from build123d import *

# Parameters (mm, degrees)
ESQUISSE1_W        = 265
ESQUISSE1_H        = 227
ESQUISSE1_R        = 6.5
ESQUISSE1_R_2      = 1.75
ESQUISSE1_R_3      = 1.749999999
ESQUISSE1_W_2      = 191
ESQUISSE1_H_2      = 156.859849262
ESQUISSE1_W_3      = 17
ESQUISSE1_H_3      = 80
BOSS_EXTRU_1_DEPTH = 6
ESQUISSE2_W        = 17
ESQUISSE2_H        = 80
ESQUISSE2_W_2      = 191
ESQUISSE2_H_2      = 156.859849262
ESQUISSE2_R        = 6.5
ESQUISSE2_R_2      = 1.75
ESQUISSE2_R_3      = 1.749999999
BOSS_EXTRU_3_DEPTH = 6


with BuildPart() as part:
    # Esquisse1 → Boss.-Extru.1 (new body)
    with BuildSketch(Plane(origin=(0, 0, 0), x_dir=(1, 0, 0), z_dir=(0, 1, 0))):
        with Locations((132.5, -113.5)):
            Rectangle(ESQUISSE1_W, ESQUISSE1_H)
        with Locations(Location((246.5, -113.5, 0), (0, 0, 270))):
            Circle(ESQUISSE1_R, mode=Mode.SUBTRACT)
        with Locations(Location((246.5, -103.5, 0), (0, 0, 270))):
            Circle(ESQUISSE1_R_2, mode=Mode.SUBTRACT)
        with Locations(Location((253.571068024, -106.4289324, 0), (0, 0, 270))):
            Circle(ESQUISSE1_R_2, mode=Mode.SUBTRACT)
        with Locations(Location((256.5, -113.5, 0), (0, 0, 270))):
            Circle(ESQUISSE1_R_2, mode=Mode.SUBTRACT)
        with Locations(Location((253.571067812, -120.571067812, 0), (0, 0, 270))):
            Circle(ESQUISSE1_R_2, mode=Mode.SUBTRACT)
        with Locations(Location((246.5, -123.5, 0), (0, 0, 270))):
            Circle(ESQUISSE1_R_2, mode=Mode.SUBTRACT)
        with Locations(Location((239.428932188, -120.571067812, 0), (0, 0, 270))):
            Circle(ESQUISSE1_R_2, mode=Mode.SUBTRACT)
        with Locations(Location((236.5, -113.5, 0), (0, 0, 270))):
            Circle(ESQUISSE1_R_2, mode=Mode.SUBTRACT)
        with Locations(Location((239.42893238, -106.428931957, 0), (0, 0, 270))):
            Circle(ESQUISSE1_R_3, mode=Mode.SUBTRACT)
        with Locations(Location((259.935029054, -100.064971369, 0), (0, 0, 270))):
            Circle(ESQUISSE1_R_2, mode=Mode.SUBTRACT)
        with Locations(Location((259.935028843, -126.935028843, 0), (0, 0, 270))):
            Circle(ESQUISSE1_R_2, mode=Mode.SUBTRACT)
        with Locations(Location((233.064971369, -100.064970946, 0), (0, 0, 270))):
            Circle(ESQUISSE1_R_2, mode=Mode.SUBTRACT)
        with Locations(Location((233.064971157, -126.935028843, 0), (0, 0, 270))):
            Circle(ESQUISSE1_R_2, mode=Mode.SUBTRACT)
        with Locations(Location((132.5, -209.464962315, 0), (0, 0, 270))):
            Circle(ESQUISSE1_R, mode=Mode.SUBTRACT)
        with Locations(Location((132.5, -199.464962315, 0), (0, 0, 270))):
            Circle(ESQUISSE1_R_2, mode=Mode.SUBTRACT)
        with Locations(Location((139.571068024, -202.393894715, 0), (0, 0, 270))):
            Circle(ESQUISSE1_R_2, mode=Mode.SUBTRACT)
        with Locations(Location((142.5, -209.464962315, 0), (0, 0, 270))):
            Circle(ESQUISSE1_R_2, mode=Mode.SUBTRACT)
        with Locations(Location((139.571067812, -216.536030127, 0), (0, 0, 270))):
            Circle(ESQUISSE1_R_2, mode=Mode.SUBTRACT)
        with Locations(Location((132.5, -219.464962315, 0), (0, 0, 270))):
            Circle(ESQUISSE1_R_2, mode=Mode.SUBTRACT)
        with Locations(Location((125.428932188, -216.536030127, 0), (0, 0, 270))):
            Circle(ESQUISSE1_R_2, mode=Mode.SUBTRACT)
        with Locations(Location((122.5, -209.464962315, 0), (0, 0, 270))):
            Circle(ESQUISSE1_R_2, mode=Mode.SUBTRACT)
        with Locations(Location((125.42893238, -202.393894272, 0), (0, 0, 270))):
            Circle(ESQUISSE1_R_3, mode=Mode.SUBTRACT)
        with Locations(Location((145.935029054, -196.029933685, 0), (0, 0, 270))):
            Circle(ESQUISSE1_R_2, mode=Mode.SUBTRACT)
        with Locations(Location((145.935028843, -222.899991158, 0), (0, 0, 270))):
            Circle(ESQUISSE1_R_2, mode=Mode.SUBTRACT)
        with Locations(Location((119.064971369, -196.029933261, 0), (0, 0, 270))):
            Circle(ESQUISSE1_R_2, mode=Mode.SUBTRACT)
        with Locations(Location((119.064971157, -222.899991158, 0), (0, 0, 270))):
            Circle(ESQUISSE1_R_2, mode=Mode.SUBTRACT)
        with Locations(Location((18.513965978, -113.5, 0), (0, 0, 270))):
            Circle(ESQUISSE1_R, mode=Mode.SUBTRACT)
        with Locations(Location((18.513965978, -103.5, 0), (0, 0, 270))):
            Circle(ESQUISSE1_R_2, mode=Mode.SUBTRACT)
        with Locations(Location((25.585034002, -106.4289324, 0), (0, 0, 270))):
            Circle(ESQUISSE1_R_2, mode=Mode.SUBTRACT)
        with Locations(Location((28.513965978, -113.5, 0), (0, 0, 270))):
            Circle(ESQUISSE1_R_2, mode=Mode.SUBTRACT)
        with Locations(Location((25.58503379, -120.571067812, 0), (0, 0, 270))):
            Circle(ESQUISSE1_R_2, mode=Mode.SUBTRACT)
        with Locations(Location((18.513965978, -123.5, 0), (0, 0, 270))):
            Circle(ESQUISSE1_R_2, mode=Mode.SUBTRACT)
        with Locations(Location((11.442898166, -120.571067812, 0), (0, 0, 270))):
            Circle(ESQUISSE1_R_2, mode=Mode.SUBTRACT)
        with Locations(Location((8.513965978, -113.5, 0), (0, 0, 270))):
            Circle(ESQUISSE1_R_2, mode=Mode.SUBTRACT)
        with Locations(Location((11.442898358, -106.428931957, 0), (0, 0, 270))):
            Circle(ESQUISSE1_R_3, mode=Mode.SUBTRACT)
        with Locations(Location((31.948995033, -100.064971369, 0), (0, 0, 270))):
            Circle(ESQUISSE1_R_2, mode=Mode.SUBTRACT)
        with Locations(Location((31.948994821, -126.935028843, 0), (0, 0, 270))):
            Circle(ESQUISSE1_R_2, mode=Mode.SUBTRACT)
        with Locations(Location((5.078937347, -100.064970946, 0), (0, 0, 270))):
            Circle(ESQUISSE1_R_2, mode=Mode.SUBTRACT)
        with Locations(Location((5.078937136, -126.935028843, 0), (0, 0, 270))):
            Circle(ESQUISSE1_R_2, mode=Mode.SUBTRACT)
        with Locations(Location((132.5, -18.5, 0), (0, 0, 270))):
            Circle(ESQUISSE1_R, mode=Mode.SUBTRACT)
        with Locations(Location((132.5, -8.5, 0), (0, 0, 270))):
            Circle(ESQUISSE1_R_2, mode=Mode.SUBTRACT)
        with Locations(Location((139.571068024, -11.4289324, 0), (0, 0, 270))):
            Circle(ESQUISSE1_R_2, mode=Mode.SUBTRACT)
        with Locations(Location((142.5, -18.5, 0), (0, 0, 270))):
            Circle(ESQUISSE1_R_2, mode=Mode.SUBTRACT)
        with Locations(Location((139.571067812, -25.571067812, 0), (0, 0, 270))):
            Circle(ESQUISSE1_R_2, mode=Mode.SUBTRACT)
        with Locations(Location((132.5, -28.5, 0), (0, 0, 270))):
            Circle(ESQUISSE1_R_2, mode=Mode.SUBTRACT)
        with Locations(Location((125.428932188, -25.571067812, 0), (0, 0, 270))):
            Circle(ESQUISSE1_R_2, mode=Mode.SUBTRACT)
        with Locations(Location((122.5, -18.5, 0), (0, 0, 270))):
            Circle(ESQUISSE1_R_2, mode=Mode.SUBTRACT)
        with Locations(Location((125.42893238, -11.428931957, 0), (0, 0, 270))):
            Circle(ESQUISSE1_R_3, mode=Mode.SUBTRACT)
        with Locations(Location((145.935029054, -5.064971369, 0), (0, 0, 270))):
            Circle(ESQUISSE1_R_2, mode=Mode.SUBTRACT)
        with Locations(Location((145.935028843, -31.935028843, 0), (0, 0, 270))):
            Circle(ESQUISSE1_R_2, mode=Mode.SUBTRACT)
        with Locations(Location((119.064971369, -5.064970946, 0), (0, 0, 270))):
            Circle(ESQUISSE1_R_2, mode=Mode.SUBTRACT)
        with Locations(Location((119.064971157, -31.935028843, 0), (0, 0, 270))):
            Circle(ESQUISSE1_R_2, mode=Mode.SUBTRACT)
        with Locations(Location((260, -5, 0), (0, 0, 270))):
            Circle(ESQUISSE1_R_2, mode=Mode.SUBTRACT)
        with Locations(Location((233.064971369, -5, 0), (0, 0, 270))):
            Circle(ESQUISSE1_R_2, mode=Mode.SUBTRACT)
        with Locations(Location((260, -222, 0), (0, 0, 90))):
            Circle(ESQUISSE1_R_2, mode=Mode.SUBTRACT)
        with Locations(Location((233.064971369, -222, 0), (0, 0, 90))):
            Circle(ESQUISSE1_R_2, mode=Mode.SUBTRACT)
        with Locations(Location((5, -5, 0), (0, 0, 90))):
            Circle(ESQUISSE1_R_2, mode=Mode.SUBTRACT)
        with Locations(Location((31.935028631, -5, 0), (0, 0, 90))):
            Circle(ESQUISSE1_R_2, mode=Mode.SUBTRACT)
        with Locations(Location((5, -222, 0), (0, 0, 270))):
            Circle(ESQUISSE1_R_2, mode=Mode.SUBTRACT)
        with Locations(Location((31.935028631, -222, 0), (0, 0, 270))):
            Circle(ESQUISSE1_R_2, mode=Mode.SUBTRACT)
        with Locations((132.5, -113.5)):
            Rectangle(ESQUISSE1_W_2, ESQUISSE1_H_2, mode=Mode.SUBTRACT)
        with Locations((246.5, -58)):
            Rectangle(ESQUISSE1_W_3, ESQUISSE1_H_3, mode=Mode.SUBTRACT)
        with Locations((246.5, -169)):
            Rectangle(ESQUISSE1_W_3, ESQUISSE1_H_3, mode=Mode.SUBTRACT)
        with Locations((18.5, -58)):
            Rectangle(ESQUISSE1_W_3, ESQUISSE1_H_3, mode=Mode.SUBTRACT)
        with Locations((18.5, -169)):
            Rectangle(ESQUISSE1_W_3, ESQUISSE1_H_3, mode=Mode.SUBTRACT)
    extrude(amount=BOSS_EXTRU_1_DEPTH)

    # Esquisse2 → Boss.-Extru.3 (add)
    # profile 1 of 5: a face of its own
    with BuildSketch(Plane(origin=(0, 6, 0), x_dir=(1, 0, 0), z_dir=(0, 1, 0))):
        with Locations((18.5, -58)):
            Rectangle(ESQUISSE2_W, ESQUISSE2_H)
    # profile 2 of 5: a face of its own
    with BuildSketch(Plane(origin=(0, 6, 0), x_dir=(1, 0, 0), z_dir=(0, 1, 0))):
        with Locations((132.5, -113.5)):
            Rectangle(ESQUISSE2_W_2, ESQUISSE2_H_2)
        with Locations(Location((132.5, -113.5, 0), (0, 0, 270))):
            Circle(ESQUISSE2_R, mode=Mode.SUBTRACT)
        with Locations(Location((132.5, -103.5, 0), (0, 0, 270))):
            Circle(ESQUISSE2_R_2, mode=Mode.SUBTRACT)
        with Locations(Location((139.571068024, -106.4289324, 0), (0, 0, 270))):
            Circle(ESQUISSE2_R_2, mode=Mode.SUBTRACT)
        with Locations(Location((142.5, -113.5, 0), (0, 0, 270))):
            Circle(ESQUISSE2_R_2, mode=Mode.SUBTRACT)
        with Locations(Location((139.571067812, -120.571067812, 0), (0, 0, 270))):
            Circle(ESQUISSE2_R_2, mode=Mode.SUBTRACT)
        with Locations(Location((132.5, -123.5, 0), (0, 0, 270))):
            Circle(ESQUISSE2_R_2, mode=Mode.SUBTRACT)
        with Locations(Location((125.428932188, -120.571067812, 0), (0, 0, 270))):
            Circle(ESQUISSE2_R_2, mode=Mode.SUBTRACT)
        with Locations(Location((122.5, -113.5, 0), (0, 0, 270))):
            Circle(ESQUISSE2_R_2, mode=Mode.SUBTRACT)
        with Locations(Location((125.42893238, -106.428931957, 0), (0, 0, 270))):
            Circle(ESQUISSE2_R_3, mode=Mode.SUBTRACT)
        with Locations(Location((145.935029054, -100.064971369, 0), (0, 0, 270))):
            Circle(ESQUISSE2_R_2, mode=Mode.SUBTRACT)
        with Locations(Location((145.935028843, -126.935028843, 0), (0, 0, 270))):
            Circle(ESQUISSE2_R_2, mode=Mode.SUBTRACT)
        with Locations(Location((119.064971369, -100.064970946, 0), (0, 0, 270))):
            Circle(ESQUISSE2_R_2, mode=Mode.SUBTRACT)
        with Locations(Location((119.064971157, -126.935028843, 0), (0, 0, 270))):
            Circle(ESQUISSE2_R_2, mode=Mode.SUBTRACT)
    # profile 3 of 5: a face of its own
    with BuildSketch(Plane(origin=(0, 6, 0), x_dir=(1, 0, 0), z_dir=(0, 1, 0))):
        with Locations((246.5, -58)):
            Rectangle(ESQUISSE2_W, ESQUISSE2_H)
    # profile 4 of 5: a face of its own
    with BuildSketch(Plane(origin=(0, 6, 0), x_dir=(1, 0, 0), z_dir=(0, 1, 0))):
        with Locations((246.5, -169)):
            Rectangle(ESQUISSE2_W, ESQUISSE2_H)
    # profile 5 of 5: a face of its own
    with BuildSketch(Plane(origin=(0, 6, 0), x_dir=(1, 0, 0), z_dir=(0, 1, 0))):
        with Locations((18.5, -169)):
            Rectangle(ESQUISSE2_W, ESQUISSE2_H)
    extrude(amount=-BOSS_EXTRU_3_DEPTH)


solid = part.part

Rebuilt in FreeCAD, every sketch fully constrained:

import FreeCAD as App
import Part
import Sketcher


def add_polygon(sketch, points):
    """Adds a closed chain of lines whose ends are joined by coincident constraints."""
    first, n = sketch.GeometryCount, len(points)
    for a, b in zip(points, points[1:] + points[:1]):
        sketch.addGeometry(Part.LineSegment(App.Vector(*a, 0), App.Vector(*b, 0)), False)
    for i in range(n):
        sketch.addConstraint(Sketcher.Constraint("Coincident", first + i, 2, first + (i + 1) % n, 1))

doc = App.newDocument("Part")
params = doc.addObject("Spreadsheet::Sheet", "Params")
for row, (alias, value) in enumerate([
    ("sketch1_diameter", "13 mm"),
    ("sketch1_diameter2", "3.5 mm"),
    ("sketch1_width", "265 mm"),
    ("sketch1_width2", "17 mm"),
    ("sketch1_width3", "191 mm"),
    ("pad1_length", "6 mm"),
    ("sketch2_diameter", "13 mm"),
    ("sketch2_diameter2", "3.5 mm"),
    ("sketch2_width", "17 mm"),
    ("sketch2_width2", "191 mm"),
    ("sketch2_height", "80 mm"),
    ("pad2_length", "6 mm"),
], start=1):
    params.set(f"A{row}", alias)
    params.set(f"B{row}", "=" + value)
    params.setAlias(f"B{row}", alias)

body = doc.addObject("PartDesign::Body", "Body")

# Sketch on XZ plane
sketch1 = body.newObject("Sketcher::SketchObject", "Sketch")
sketch1.AttachmentSupport = (doc.getObject("XZ_Plane"), [""])
sketch1.MapMode = "FlatFace"
add_polygon(sketch1, [(0, 0), (0, 227), (265, 227), (265, 0)])  # lines 0-3
sketch1.addGeometry(Part.Circle(App.Vector(5, 222, 0), App.Vector(0, 0, 1), 1.8), False)  # 4
sketch1.addGeometry(Part.Circle(App.Vector(31.9, 222, 0), App.Vector(0, 0, 1), 1.8), False)  # 5
sketch1.addGeometry(Part.Circle(App.Vector(119.1, 222.9, 0), App.Vector(0, 0, 1), 1.8), False)  # 6
sketch1.addGeometry(Part.Circle(App.Vector(125.4, 216.5, 0), App.Vector(0, 0, 1), 1.8), False)  # 7
sketch1.addGeometry(Part.Circle(App.Vector(122.5, 209.5, 0), App.Vector(0, 0, 1), 1.8), False)  # 8
sketch1.addGeometry(Part.Circle(App.Vector(125.4, 202.4, 0), App.Vector(0, 0, 1), 1.7), False)  # 9
sketch1.addGeometry(Part.Circle(App.Vector(119.1, 196, 0), App.Vector(0, 0, 1), 1.8), False)  # 10
add_polygon(sketch1, [(27, 209), (10, 209), (10, 129), (27, 129)])  # lines 11-14
sketch1.addGeometry(Part.Circle(App.Vector(5.1, 126.9, 0), App.Vector(0, 0, 1), 1.8), False)  # 15
sketch1.addGeometry(Part.Circle(App.Vector(18.5, 123.5, 0), App.Vector(0, 0, 1), 1.8), False)  # 16
sketch1.addGeometry(Part.Circle(App.Vector(11.4, 120.6, 0), App.Vector(0, 0, 1), 1.8), False)  # 17
sketch1.addGeometry(Part.Circle(App.Vector(31.9, 126.9, 0), App.Vector(0, 0, 1), 1.8), False)  # 18
sketch1.addGeometry(Part.Circle(App.Vector(25.6, 120.6, 0), App.Vector(0, 0, 1), 1.8), False)  # 19
sketch1.addGeometry(Part.Circle(App.Vector(132.5, 219.5, 0), App.Vector(0, 0, 1), 1.8), False)  # 20
sketch1.addGeometry(Part.Circle(App.Vector(145.9, 222.9, 0), App.Vector(0, 0, 1), 1.8), False)  # 21
sketch1.addGeometry(Part.Circle(App.Vector(139.6, 216.5, 0), App.Vector(0, 0, 1), 1.8), False)  # 22
sketch1.addGeometry(Part.Circle(App.Vector(132.5, 209.5, 0), App.Vector(0, 0, 1), 6.5), False)  # 23
sketch1.addGeometry(Part.Circle(App.Vector(142.5, 209.5, 0), App.Vector(0, 0, 1), 1.8), False)  # 24
sketch1.addGeometry(Part.Circle(App.Vector(139.6, 202.4, 0), App.Vector(0, 0, 1), 1.8), False)  # 25
sketch1.addGeometry(Part.Circle(App.Vector(132.5, 199.5, 0), App.Vector(0, 0, 1), 1.8), False)  # 26
sketch1.addGeometry(Part.Circle(App.Vector(145.9, 196, 0), App.Vector(0, 0, 1), 1.8), False)  # 27
sketch1.addGeometry(Part.Circle(App.Vector(233.1, 222, 0), App.Vector(0, 0, 1), 1.8), False)  # 28
sketch1.addGeometry(Part.Circle(App.Vector(260, 222, 0), App.Vector(0, 0, 1), 1.8), False)  # 29
add_polygon(sketch1, [(255, 209), (238, 209), (238, 129), (255, 129)])  # lines 30-33
sketch1.addGeometry(Part.Circle(App.Vector(233.1, 126.9, 0), App.Vector(0, 0, 1), 1.8), False)  # 34
sketch1.addGeometry(Part.Circle(App.Vector(239.4, 120.6, 0), App.Vector(0, 0, 1), 1.8), False)  # 35
sketch1.addGeometry(Part.Circle(App.Vector(246.5, 123.5, 0), App.Vector(0, 0, 1), 1.8), False)  # 36
sketch1.addGeometry(Part.Circle(App.Vector(259.9, 126.9, 0), App.Vector(0, 0, 1), 1.8), False)  # 37
sketch1.addGeometry(Part.Circle(App.Vector(253.6, 120.6, 0), App.Vector(0, 0, 1), 1.8), False)  # 38
sketch1.addGeometry(Part.Circle(App.Vector(8.5, 113.5, 0), App.Vector(0, 0, 1), 1.8), False)  # 39
sketch1.addGeometry(Part.Circle(App.Vector(18.5, 113.5, 0), App.Vector(0, 0, 1), 6.5), False)  # 40
sketch1.addGeometry(Part.Circle(App.Vector(11.4, 106.4, 0), App.Vector(0, 0, 1), 1.7), False)  # 41
sketch1.addGeometry(Part.Circle(App.Vector(18.5, 103.5, 0), App.Vector(0, 0, 1), 1.8), False)  # 42
sketch1.addGeometry(Part.Circle(App.Vector(28.5, 113.5, 0), App.Vector(0, 0, 1), 1.8), False)  # 43
sketch1.addGeometry(Part.Circle(App.Vector(25.6, 106.4, 0), App.Vector(0, 0, 1), 1.8), False)  # 44
sketch1.addGeometry(Part.Circle(App.Vector(5.1, 100.1, 0), App.Vector(0, 0, 1), 1.8), False)  # 45
sketch1.addGeometry(Part.Circle(App.Vector(31.9, 100.1, 0), App.Vector(0, 0, 1), 1.8), False)  # 46
add_polygon(sketch1, [(27, 98), (10, 98), (10, 18), (27, 18)])  # lines 47-50
sketch1.addGeometry(Part.Circle(App.Vector(5, 5, 0), App.Vector(0, 0, 1), 1.8), False)  # 51
sketch1.addGeometry(Part.Circle(App.Vector(31.9, 5, 0), App.Vector(0, 0, 1), 1.8), False)  # 52
sketch1.addGeometry(Part.Circle(App.Vector(119.1, 31.9, 0), App.Vector(0, 0, 1), 1.8), False)  # 53
sketch1.addGeometry(Part.Circle(App.Vector(125.4, 25.6, 0), App.Vector(0, 0, 1), 1.8), False)  # 54
sketch1.addGeometry(Part.Circle(App.Vector(122.5, 18.5, 0), App.Vector(0, 0, 1), 1.8), False)  # 55
sketch1.addGeometry(Part.Circle(App.Vector(125.4, 11.4, 0), App.Vector(0, 0, 1), 1.7), False)  # 56
sketch1.addGeometry(Part.Circle(App.Vector(119.1, 5.1, 0), App.Vector(0, 0, 1), 1.8), False)  # 57
add_polygon(sketch1, [(228, 191.9), (37, 191.9), (37, 35.1), (228, 35.1)])  # lines 58-61
sketch1.addGeometry(Part.Circle(App.Vector(236.5, 113.5, 0), App.Vector(0, 0, 1), 1.8), False)  # 62
sketch1.addGeometry(Part.Circle(App.Vector(239.4, 106.4, 0), App.Vector(0, 0, 1), 1.7), False)  # 63
sketch1.addGeometry(Part.Circle(App.Vector(246.5, 113.5, 0), App.Vector(0, 0, 1), 6.5), False)  # 64
sketch1.addGeometry(Part.Circle(App.Vector(256.5, 113.5, 0), App.Vector(0, 0, 1), 1.8), False)  # 65
sketch1.addGeometry(Part.Circle(App.Vector(253.6, 106.4, 0), App.Vector(0, 0, 1), 1.8), False)  # 66
sketch1.addGeometry(Part.Circle(App.Vector(246.5, 103.5, 0), App.Vector(0, 0, 1), 1.8), False)  # 67
sketch1.addGeometry(Part.Circle(App.Vector(233.1, 100.1, 0), App.Vector(0, 0, 1), 1.8), False)  # 68
sketch1.addGeometry(Part.Circle(App.Vector(259.9, 100.1, 0), App.Vector(0, 0, 1), 1.8), False)  # 69
sketch1.addGeometry(Part.Circle(App.Vector(145.9, 31.9, 0), App.Vector(0, 0, 1), 1.8), False)  # 70
sketch1.addGeometry(Part.Circle(App.Vector(132.5, 28.5, 0), App.Vector(0, 0, 1), 1.8), False)  # 71
sketch1.addGeometry(Part.Circle(App.Vector(139.6, 25.6, 0), App.Vector(0, 0, 1), 1.8), False)  # 72
sketch1.addGeometry(Part.Circle(App.Vector(132.5, 18.5, 0), App.Vector(0, 0, 1), 6.5), False)  # 73
sketch1.addGeometry(Part.Circle(App.Vector(142.5, 18.5, 0), App.Vector(0, 0, 1), 1.8), False)  # 74
sketch1.addGeometry(Part.Circle(App.Vector(139.6, 11.4, 0), App.Vector(0, 0, 1), 1.8), False)  # 75
sketch1.addGeometry(Part.Circle(App.Vector(132.5, 8.5, 0), App.Vector(0, 0, 1), 1.8), False)  # 76
sketch1.addGeometry(Part.Circle(App.Vector(145.9, 5.1, 0), App.Vector(0, 0, 1), 1.8), False)  # 77
add_polygon(sketch1, [(255, 98), (238, 98), (238, 18), (255, 18)])  # lines 78-81
sketch1.addGeometry(Part.Circle(App.Vector(233.1, 5, 0), App.Vector(0, 0, 1), 1.8), False)  # 82
sketch1.addGeometry(Part.Circle(App.Vector(260, 5, 0), App.Vector(0, 0, 1), 1.8), False)  # 83
sketch1.addConstraint([
    Sketcher.Constraint("Vertical", 0),
    Sketcher.Constraint("Horizontal", 1),
    Sketcher.Constraint("Vertical", 2),
    Sketcher.Constraint("Horizontal", 3),
    Sketcher.Constraint("Horizontal", 11),
    Sketcher.Constraint("Vertical", 12),
    Sketcher.Constraint("Horizontal", 13),
    Sketcher.Constraint("Vertical", 14),
    Sketcher.Constraint("Horizontal", 30),
    Sketcher.Constraint("Vertical", 31),
    Sketcher.Constraint("Horizontal", 32),
    Sketcher.Constraint("Vertical", 33),
    Sketcher.Constraint("Horizontal", 47),
    Sketcher.Constraint("Vertical", 48),
    Sketcher.Constraint("Horizontal", 49),
    Sketcher.Constraint("Vertical", 50),
    Sketcher.Constraint("Horizontal", 58),
    Sketcher.Constraint("Vertical", 59),
    Sketcher.Constraint("Horizontal", 60),
    Sketcher.Constraint("Vertical", 61),
    Sketcher.Constraint("Horizontal", 78),
    Sketcher.Constraint("Vertical", 79),
    Sketcher.Constraint("Horizontal", 80),
    Sketcher.Constraint("Vertical", 81),
    Sketcher.Constraint("Coincident", 3, 2, -1, 1),
    Sketcher.Constraint("Equal", 4, 5),
    Sketcher.Constraint("Equal", 5, 6),
    Sketcher.Constraint("Equal", 6, 7),
    Sketcher.Constraint("Equal", 7, 8),
    Sketcher.Constraint("Equal", 8, 9),
    Sketcher.Constraint("Equal", 9, 10),
    Sketcher.Constraint("Equal", 10, 15),
    Sketcher.Constraint("Equal", 15, 16),
    Sketcher.Constraint("Equal", 16, 17),
    Sketcher.Constraint("Equal", 17, 18),
    Sketcher.Constraint("Equal", 18, 19),
    Sketcher.Constraint("Equal", 19, 20),
    Sketcher.Constraint("Equal", 20, 21),
    Sketcher.Constraint("Equal", 21, 22),
    Sketcher.Constraint("Equal", 22, 24),
    Sketcher.Constraint("Equal", 24, 25),
    Sketcher.Constraint("Equal", 25, 26),
    Sketcher.Constraint("Equal", 26, 27),
    Sketcher.Constraint("Equal", 27, 28),
    Sketcher.Constraint("Equal", 28, 29),
    Sketcher.Constraint("Equal", 29, 34),
    Sketcher.Constraint("Equal", 34, 35),
    Sketcher.Constraint("Equal", 35, 36),
    Sketcher.Constraint("Equal", 36, 37),
    Sketcher.Constraint("Equal", 37, 38),
    Sketcher.Constraint("Equal", 38, 39),
    Sketcher.Constraint("Equal", 23, 40),
    Sketcher.Constraint("Equal", 39, 41),
    Sketcher.Constraint("Equal", 41, 42),
    Sketcher.Constraint("Equal", 42, 43),
    Sketcher.Constraint("Equal", 43, 44),
    Sketcher.Constraint("Equal", 44, 45),
    Sketcher.Constraint("Equal", 45, 46),
    Sketcher.Constraint("Equal", 46, 51),
    Sketcher.Constraint("Equal", 51, 52),
    Sketcher.Constraint("Equal", 52, 53),
    Sketcher.Constraint("Equal", 53, 54),
    Sketcher.Constraint("Equal", 54, 55),
    Sketcher.Constraint("Equal", 55, 56),
    Sketcher.Constraint("Equal", 56, 57),
    Sketcher.Constraint("Equal", 57, 62),
    Sketcher.Constraint("Equal", 62, 63),
    Sketcher.Constraint("Equal", 40, 64),
    Sketcher.Constraint("Equal", 63, 65),
    Sketcher.Constraint("Equal", 65, 66),
    Sketcher.Constraint("Equal", 66, 67),
    Sketcher.Constraint("Equal", 67, 68),
    Sketcher.Constraint("Equal", 68, 69),
    Sketcher.Constraint("Equal", 69, 70),
    Sketcher.Constraint("Equal", 70, 71),
    Sketcher.Constraint("Equal", 71, 72),
    Sketcher.Constraint("Equal", 64, 73),
    Sketcher.Constraint("Equal", 72, 74),
    Sketcher.Constraint("Equal", 74, 75),
    Sketcher.Constraint("Equal", 75, 76),
    Sketcher.Constraint("Equal", 76, 77),
    Sketcher.Constraint("Equal", 77, 82),
    Sketcher.Constraint("Equal", 82, 83),
    Sketcher.Constraint("Horizontal", 4, 3, 5, 3),
    Sketcher.Constraint("Horizontal", 15, 3, 18, 3),
    Sketcher.Constraint("Horizontal", 17, 3, 19, 3),
    Sketcher.Constraint("Horizontal", 6, 3, 21, 3),
    Sketcher.Constraint("Horizontal", 7, 3, 22, 3),
    Sketcher.Constraint("Horizontal", 8, 3, 23, 3),
    Sketcher.Constraint("Horizontal", 23, 3, 24, 3),
    Sketcher.Constraint("Horizontal", 9, 3, 25, 3),
    Sketcher.Constraint("Horizontal", 10, 3, 27, 3),
    Sketcher.Constraint("Horizontal", 5, 3, 28, 3),
    Sketcher.Constraint("Horizontal", 28, 3, 29, 3),
    Sketcher.Constraint("Horizontal", 18, 3, 34, 3),
    Sketcher.Constraint("Horizontal", 19, 3, 35, 3),
    Sketcher.Constraint("Horizontal", 16, 3, 36, 3),
    Sketcher.Constraint("Horizontal", 34, 3, 37, 3),
    Sketcher.Constraint("Horizontal", 35, 3, 38, 3),
    Sketcher.Constraint("Horizontal", 39, 3, 40, 3),
    Sketcher.Constraint("Horizontal", 40, 3, 43, 3),
    Sketcher.Constraint("Horizontal", 41, 3, 44, 3),
    Sketcher.Constraint("Horizontal", 45, 3, 46, 3),
    Sketcher.Constraint("Horizontal", 51, 3, 52, 3),
    Sketcher.Constraint("Horizontal", 43, 3, 62, 3),
    Sketcher.Constraint("Horizontal", 44, 3, 63, 3),
    Sketcher.Constraint("Horizontal", 62, 3, 64, 3),
    Sketcher.Constraint("Horizontal", 64, 3, 65, 3),
    Sketcher.Constraint("Horizontal", 63, 3, 66, 3),
    Sketcher.Constraint("Horizontal", 42, 3, 67, 3),
    Sketcher.Constraint("Horizontal", 46, 3, 68, 3),
    Sketcher.Constraint("Horizontal", 68, 3, 69, 3),
    Sketcher.Constraint("Horizontal", 53, 3, 70, 3),
    Sketcher.Constraint("Horizontal", 54, 3, 72, 3),
    Sketcher.Constraint("Horizontal", 55, 3, 73, 3),
    Sketcher.Constraint("Horizontal", 73, 3, 74, 3),
    Sketcher.Constraint("Horizontal", 56, 3, 75, 3),
    Sketcher.Constraint("Horizontal", 57, 3, 77, 3),
    Sketcher.Constraint("Horizontal", 52, 3, 82, 3),
    Sketcher.Constraint("Horizontal", 82, 3, 83, 3),
    Sketcher.Constraint("Horizontal", 14, 2, 30, 2),
    Sketcher.Constraint("Horizontal", 13, 2, 31, 2),
    Sketcher.Constraint("Horizontal", 50, 2, 78, 2),
    Sketcher.Constraint("Horizontal", 49, 2, 79, 2),
    Sketcher.Constraint("Vertical", 7, 3, 9, 3),
    Sketcher.Constraint("Vertical", 6, 3, 10, 3),
    Sketcher.Constraint("Vertical", 20, 3, 23, 3),
    Sketcher.Constraint("Vertical", 22, 3, 25, 3),
    Sketcher.Constraint("Vertical", 23, 3, 26, 3),
    Sketcher.Constraint("Vertical", 21, 3, 27, 3),
    Sketcher.Constraint("Vertical", 28, 3, 34, 3),
    Sketcher.Constraint("Vertical", 16, 3, 40, 3),
    Sketcher.Constraint("Vertical", 17, 3, 41, 3),
    Sketcher.Constraint("Vertical", 40, 3, 42, 3),
    Sketcher.Constraint("Vertical", 19, 3, 44, 3),
    Sketcher.Constraint("Vertical", 15, 3, 45, 3),
    Sketcher.Constraint("Vertical", 18, 3, 46, 3),
    Sketcher.Constraint("Vertical", 4, 3, 51, 3),
    Sketcher.Constraint("Vertical", 5, 3, 52, 3),
    Sketcher.Constraint("Vertical", 10, 3, 53, 3),
    Sketcher.Constraint("Vertical", 9, 3, 54, 3),
    Sketcher.Constraint("Vertical", 8, 3, 55, 3),
    Sketcher.Constraint("Vertical", 54, 3, 56, 3),
    Sketcher.Constraint("Vertical", 53, 3, 57, 3),
    Sketcher.Constraint("Vertical", 35, 3, 63, 3),
    Sketcher.Constraint("Vertical", 36, 3, 64, 3),
    Sketcher.Constraint("Vertical", 38, 3, 66, 3),
    Sketcher.Constraint("Vertical", 64, 3, 67, 3),
    Sketcher.Constraint("Vertical", 34, 3, 68, 3),
    Sketcher.Constraint("Vertical", 37, 3, 69, 3),
    Sketcher.Constraint("Vertical", 27, 3, 70, 3),
    Sketcher.Constraint("Vertical", 26, 3, 71, 3),
    Sketcher.Constraint("Vertical", 25, 3, 72, 3),
    Sketcher.Constraint("Vertical", 71, 3, 73, 3),
    Sketcher.Constraint("Vertical", 24, 3, 74, 3),
    Sketcher.Constraint("Vertical", 72, 3, 75, 3),
    Sketcher.Constraint("Vertical", 73, 3, 76, 3),
    Sketcher.Constraint("Vertical", 70, 3, 77, 3),
    Sketcher.Constraint("Vertical", 68, 3, 82, 3),
    Sketcher.Constraint("Vertical", 29, 3, 83, 3),
    Sketcher.Constraint("Vertical", 12, 2, 47, 2),
    Sketcher.Constraint("Vertical", 14, 2, 49, 2),
    Sketcher.Constraint("Vertical", 31, 2, 78, 2),
    Sketcher.Constraint("Vertical", 33, 2, 80, 2),
    Sketcher.Constraint("Equal", 13, 30),
    Sketcher.Constraint("Equal", 33, 48),
    Sketcher.Constraint("Diameter", 23, 13.0),
    Sketcher.Constraint("Diameter", 4, 3.5),
    Sketcher.Constraint("DistanceX", 1, 1, 1, 2, 265.0),
    Sketcher.Constraint("DistanceX", 11, 2, 11, 1, 17.0),
    Sketcher.Constraint("DistanceX", 58, 2, 58, 1, 191.0),
    Sketcher.Constraint("DistanceY", 0, 1, 0, 2, 227.0),
    Sketcher.Constraint("DistanceY", 12, 2, 12, 1, 80.0),
    Sketcher.Constraint("DistanceX", -1, 1, 4, 3, 5.0),
    Sketcher.Constraint("DistanceY", -1, 1, 4, 3, 222.0),
    Sketcher.Constraint("DistanceX", -1, 1, 29, 3, 260.0),
    Sketcher.Constraint("DistanceY", -1, 1, 51, 3, 5.0),
    Sketcher.Constraint("DistanceX", -1, 1, 11, 2, 10.0),
    Sketcher.Constraint("DistanceY", -1, 1, 11, 2, 209.0),
    Sketcher.Constraint("DistanceX", -1, 1, 30, 2, 238.0),
    Sketcher.Constraint("DistanceY", -1, 1, 47, 2, 98.0),
    Sketcher.Constraint("DistanceX", -1, 1, 58, 2, 37.0),
    Sketcher.Constraint("DistanceX", -1, 1, 8, 3, 122.5),
    Sketcher.Constraint("DistanceY", -1, 1, 16, 3, 123.5),
    Sketcher.Constraint("DistanceX", -1, 1, 20, 3, 132.5),
    Sketcher.Constraint("DistanceX", -1, 1, 24, 3, 142.5),
    Sketcher.Constraint("DistanceX", -1, 1, 36, 3, 246.5),
    Sketcher.Constraint("DistanceY", -1, 1, 39, 3, 113.5),
    Sketcher.Constraint("DistanceY", -1, 1, 42, 3, 103.5),
    Sketcher.Constraint("DistanceY", -1, 1, 55, 3, 18.5),
    Sketcher.Constraint("DistanceX", -1, 1, 62, 3, 236.5),
    Sketcher.Constraint("DistanceX", -1, 1, 65, 3, 256.5),
    Sketcher.Constraint("DistanceY", -1, 1, 71, 3, 28.5),
    Sketcher.Constraint("DistanceY", -1, 1, 76, 3, 8.5),
    Sketcher.Constraint("DistanceY", 59, 2, 59, 1, 156.859849),
    Sketcher.Constraint("DistanceX", -1, 1, 17, 3, 11.442898),
    Sketcher.Constraint("DistanceX", -1, 1, 5, 3, 31.935029),
    Sketcher.Constraint("DistanceX", -1, 1, 6, 3, 119.064971),
    Sketcher.Constraint("DistanceY", -1, 1, 6, 3, 222.899991),
    Sketcher.Constraint("DistanceY", -1, 1, 7, 3, 216.53603),
    Sketcher.Constraint("DistanceY", -1, 1, 15, 3, 126.935029),
    Sketcher.Constraint("DistanceX", -1, 1, 21, 3, 145.935029),
    Sketcher.Constraint("DistanceX", -1, 1, 25, 3, 139.571068),
    Sketcher.Constraint("DistanceX", -1, 1, 28, 3, 233.064971),
    Sketcher.Constraint("DistanceX", -1, 1, 37, 3, 259.935029),
    Sketcher.Constraint("DistanceY", -1, 1, 41, 3, 106.428932),
    Sketcher.Constraint("DistanceY", -1, 1, 45, 3, 100.064971),
    Sketcher.Constraint("DistanceY", -1, 1, 53, 3, 31.935029),
    Sketcher.Constraint("DistanceY", -1, 1, 56, 3, 11.428932),
    Sketcher.Constraint("DistanceY", -1, 1, 57, 3, 5.064971),
    Sketcher.Constraint("DistanceX", -1, 1, 66, 3, 253.571068),
    Sketcher.Constraint("DistanceX", -1, 1, 7, 3, 125.428932),
    Sketcher.Constraint("DistanceY", -1, 1, 8, 3, 209.464962),
    Sketcher.Constraint("DistanceY", -1, 1, 9, 3, 202.393894),
    Sketcher.Constraint("DistanceY", -1, 1, 10, 3, 196.029933),
    Sketcher.Constraint("DistanceX", -1, 1, 15, 3, 5.078937),
    Sketcher.Constraint("DistanceX", -1, 1, 16, 3, 18.513966),
    Sketcher.Constraint("DistanceY", -1, 1, 17, 3, 120.571068),
    Sketcher.Constraint("DistanceX", -1, 1, 18, 3, 31.948995),
    Sketcher.Constraint("DistanceX", -1, 1, 19, 3, 25.585034),
    Sketcher.Constraint("DistanceY", -1, 1, 20, 3, 219.464962),
    Sketcher.Constraint("DistanceY", -1, 1, 26, 3, 199.464962),
    Sketcher.Constraint("DistanceX", -1, 1, 35, 3, 239.428932),
    Sketcher.Constraint("DistanceX", -1, 1, 39, 3, 8.513966),
    Sketcher.Constraint("DistanceX", -1, 1, 43, 3, 28.513966),
    Sketcher.Constraint("DistanceY", -1, 1, 54, 3, 25.571068),
    Sketcher.Constraint("DistanceY", -1, 1, 58, 2, 191.929925),
])
sketch1.setExpression("Constraints[190]", "Params.sketch1_diameter")
sketch1.setExpression("Constraints[191]", "Params.sketch1_diameter2")
sketch1.setExpression("Constraints[192]", "Params.sketch1_width")
sketch1.setExpression("Constraints[193]", "Params.sketch1_width2")
sketch1.setExpression("Constraints[194]", "Params.sketch1_width3")
pad1 = body.newObject("PartDesign::Pad", "Pad")
pad1.Profile = sketch1
pad1.setExpression("Length", "Params.pad1_length")
pad1.Reversed = True

# Sketch on XZ plane
sketch2 = body.newObject("Sketcher::SketchObject", "Sketch001")
sketch2.AttachmentSupport = (doc.getObject("XZ_Plane"), [""])
sketch2.MapMode = "FlatFace"
sketch2.AttachmentOffset = App.Placement(App.Vector(0, 0, -6), App.Rotation())
add_polygon(sketch2, [(10, 18), (10, 98), (27, 98), (27, 18)])  # lines 0-3
add_polygon(sketch2, [(37, 35.1), (37, 191.9), (228, 191.9), (228, 35.1)])  # lines 4-7
sketch2.addGeometry(Part.Circle(App.Vector(119.1, 126.9, 0), App.Vector(0, 0, 1), 1.8), False)  # 8
sketch2.addGeometry(Part.Circle(App.Vector(132.5, 123.5, 0), App.Vector(0, 0, 1), 1.8), False)  # 9
sketch2.addGeometry(Part.Circle(App.Vector(122.5, 113.5, 0), App.Vector(0, 0, 1), 1.8), False)  # 10
sketch2.addGeometry(Part.Circle(App.Vector(125.4, 120.6, 0), App.Vector(0, 0, 1), 1.8), False)  # 11
sketch2.addGeometry(Part.Circle(App.Vector(132.5, 113.5, 0), App.Vector(0, 0, 1), 6.5), False)  # 12
sketch2.addGeometry(Part.Circle(App.Vector(145.9, 126.9, 0), App.Vector(0, 0, 1), 1.8), False)  # 13
sketch2.addGeometry(Part.Circle(App.Vector(139.6, 120.6, 0), App.Vector(0, 0, 1), 1.8), False)  # 14
sketch2.addGeometry(Part.Circle(App.Vector(142.5, 113.5, 0), App.Vector(0, 0, 1), 1.8), False)  # 15
sketch2.addGeometry(Part.Circle(App.Vector(125.4, 106.4, 0), App.Vector(0, 0, 1), 1.7), False)  # 16
sketch2.addGeometry(Part.Circle(App.Vector(119.1, 100.1, 0), App.Vector(0, 0, 1), 1.8), False)  # 17
sketch2.addGeometry(Part.Circle(App.Vector(132.5, 103.5, 0), App.Vector(0, 0, 1), 1.8), False)  # 18
sketch2.addGeometry(Part.Circle(App.Vector(139.6, 106.4, 0), App.Vector(0, 0, 1), 1.8), False)  # 19
sketch2.addGeometry(Part.Circle(App.Vector(145.9, 100.1, 0), App.Vector(0, 0, 1), 1.8), False)  # 20
add_polygon(sketch2, [(238, 18), (238, 98), (255, 98), (255, 18)])  # lines 21-24
add_polygon(sketch2, [(238, 129), (238, 209), (255, 209), (255, 129)])  # lines 25-28
add_polygon(sketch2, [(10, 129), (10, 209), (27, 209), (27, 129)])  # lines 29-32
sketch2.addConstraint([
    Sketcher.Constraint("Vertical", 0),
    Sketcher.Constraint("Horizontal", 1),
    Sketcher.Constraint("Vertical", 2),
    Sketcher.Constraint("Horizontal", 3),
    Sketcher.Constraint("Vertical", 4),
    Sketcher.Constraint("Horizontal", 5),
    Sketcher.Constraint("Vertical", 6),
    Sketcher.Constraint("Horizontal", 7),
    Sketcher.Constraint("Vertical", 21),
    Sketcher.Constraint("Horizontal", 22),
    Sketcher.Constraint("Vertical", 23),
    Sketcher.Constraint("Horizontal", 24),
    Sketcher.Constraint("Vertical", 25),
    Sketcher.Constraint("Horizontal", 26),
    Sketcher.Constraint("Vertical", 27),
    Sketcher.Constraint("Horizontal", 28),
    Sketcher.Constraint("Vertical", 29),
    Sketcher.Constraint("Horizontal", 30),
    Sketcher.Constraint("Vertical", 31),
    Sketcher.Constraint("Horizontal", 32),
    Sketcher.Constraint("Equal", 8, 9),
    Sketcher.Constraint("Equal", 9, 10),
    Sketcher.Constraint("Equal", 10, 11),
    Sketcher.Constraint("Equal", 11, 13),
    Sketcher.Constraint("Equal", 13, 14),
    Sketcher.Constraint("Equal", 14, 15),
    Sketcher.Constraint("Equal", 15, 16),
    Sketcher.Constraint("Equal", 16, 17),
    Sketcher.Constraint("Equal", 17, 18),
    Sketcher.Constraint("Equal", 18, 19),
    Sketcher.Constraint("Equal", 19, 20),
    Sketcher.Constraint("Horizontal", 10, 3, 12, 3),
    Sketcher.Constraint("Horizontal", 8, 3, 13, 3),
    Sketcher.Constraint("Horizontal", 11, 3, 14, 3),
    Sketcher.Constraint("Horizontal", 12, 3, 15, 3),
    Sketcher.Constraint("Horizontal", 16, 3, 19, 3),
    Sketcher.Constraint("Horizontal", 17, 3, 20, 3),
    Sketcher.Constraint("Horizontal", 1, 2, 21, 2),
    Sketcher.Constraint("Horizontal", 3, 2, 23, 2),
    Sketcher.Constraint("Horizontal", 26, 2, 29, 2),
    Sketcher.Constraint("Horizontal", 28, 2, 31, 2),
    Sketcher.Constraint("Vertical", 9, 3, 12, 3),
    Sketcher.Constraint("Vertical", 11, 3, 16, 3),
    Sketcher.Constraint("Vertical", 8, 3, 17, 3),
    Sketcher.Constraint("Vertical", 12, 3, 18, 3),
    Sketcher.Constraint("Vertical", 14, 3, 19, 3),
    Sketcher.Constraint("Vertical", 13, 3, 20, 3),
    Sketcher.Constraint("Vertical", 24, 2, 25, 2),
    Sketcher.Constraint("Vertical", 23, 2, 26, 2),
    Sketcher.Constraint("Vertical", 3, 2, 29, 2),
    Sketcher.Constraint("Vertical", 2, 2, 30, 2),
    Sketcher.Constraint("Equal", 3, 22),
    Sketcher.Constraint("Equal", 23, 25),
    Sketcher.Constraint("Diameter", 12, 13.0),
    Sketcher.Constraint("Diameter", 8, 3.5),
    Sketcher.Constraint("DistanceX", 1, 1, 1, 2, 17.0),
    Sketcher.Constraint("DistanceX", 5, 1, 5, 2, 191.0),
    Sketcher.Constraint("DistanceY", 0, 1, 0, 2, 80.0),
    Sketcher.Constraint("DistanceX", -1, 1, 0, 2, 10.0),
    Sketcher.Constraint("DistanceY", -1, 1, 0, 2, 98.0),
    Sketcher.Constraint("DistanceX", -1, 1, 4, 2, 37.0),
    Sketcher.Constraint("DistanceX", -1, 1, 21, 2, 238.0),
    Sketcher.Constraint("DistanceY", -1, 1, 25, 2, 209.0),
    Sketcher.Constraint("DistanceX", 10, 3, 9, 3, 10.0),
    Sketcher.Constraint("DistanceY", 10, 3, 9, 3, 10.0),
    Sketcher.Constraint("DistanceX", 12, 3, 15, 3, 10.0),
    Sketcher.Constraint("DistanceY", 18, 3, 12, 3, 10.0),
    Sketcher.Constraint("DistanceX", -1, 1, 9, 3, 132.5),
    Sketcher.Constraint("DistanceY", -1, 1, 9, 3, 123.5),
    Sketcher.Constraint("DistanceY", 4, 1, 4, 2, 156.859849),
    Sketcher.Constraint("DistanceX", -1, 1, 8, 3, 119.064971),
    Sketcher.Constraint("DistanceY", -1, 1, 8, 3, 126.935029),
    Sketcher.Constraint("DistanceX", -1, 1, 13, 3, 145.935029),
    Sketcher.Constraint("DistanceY", -1, 1, 16, 3, 106.428932),
    Sketcher.Constraint("DistanceY", -1, 1, 17, 3, 100.064971),
    Sketcher.Constraint("DistanceX", -1, 1, 19, 3, 139.571068),
    Sketcher.Constraint("DistanceX", 8, 3, 11, 3, 6.363961),
    Sketcher.Constraint("DistanceY", 11, 3, 8, 3, 6.363961),
    Sketcher.Constraint("DistanceY", -1, 1, 4, 2, 191.929925),
])
sketch2.setExpression("Constraints[73]", "Params.sketch2_diameter")
sketch2.setExpression("Constraints[74]", "Params.sketch2_diameter2")
sketch2.setExpression("Constraints[75]", "Params.sketch2_width")
sketch2.setExpression("Constraints[76]", "Params.sketch2_width2")
sketch2.setExpression("Constraints[77]", "Params.sketch2_height")
pad2 = body.newObject("PartDesign::Pad", "Pad001")
pad2.Profile = sketch2
pad2.setExpression("Length", "Params.pad2_length")

doc.recompute()
